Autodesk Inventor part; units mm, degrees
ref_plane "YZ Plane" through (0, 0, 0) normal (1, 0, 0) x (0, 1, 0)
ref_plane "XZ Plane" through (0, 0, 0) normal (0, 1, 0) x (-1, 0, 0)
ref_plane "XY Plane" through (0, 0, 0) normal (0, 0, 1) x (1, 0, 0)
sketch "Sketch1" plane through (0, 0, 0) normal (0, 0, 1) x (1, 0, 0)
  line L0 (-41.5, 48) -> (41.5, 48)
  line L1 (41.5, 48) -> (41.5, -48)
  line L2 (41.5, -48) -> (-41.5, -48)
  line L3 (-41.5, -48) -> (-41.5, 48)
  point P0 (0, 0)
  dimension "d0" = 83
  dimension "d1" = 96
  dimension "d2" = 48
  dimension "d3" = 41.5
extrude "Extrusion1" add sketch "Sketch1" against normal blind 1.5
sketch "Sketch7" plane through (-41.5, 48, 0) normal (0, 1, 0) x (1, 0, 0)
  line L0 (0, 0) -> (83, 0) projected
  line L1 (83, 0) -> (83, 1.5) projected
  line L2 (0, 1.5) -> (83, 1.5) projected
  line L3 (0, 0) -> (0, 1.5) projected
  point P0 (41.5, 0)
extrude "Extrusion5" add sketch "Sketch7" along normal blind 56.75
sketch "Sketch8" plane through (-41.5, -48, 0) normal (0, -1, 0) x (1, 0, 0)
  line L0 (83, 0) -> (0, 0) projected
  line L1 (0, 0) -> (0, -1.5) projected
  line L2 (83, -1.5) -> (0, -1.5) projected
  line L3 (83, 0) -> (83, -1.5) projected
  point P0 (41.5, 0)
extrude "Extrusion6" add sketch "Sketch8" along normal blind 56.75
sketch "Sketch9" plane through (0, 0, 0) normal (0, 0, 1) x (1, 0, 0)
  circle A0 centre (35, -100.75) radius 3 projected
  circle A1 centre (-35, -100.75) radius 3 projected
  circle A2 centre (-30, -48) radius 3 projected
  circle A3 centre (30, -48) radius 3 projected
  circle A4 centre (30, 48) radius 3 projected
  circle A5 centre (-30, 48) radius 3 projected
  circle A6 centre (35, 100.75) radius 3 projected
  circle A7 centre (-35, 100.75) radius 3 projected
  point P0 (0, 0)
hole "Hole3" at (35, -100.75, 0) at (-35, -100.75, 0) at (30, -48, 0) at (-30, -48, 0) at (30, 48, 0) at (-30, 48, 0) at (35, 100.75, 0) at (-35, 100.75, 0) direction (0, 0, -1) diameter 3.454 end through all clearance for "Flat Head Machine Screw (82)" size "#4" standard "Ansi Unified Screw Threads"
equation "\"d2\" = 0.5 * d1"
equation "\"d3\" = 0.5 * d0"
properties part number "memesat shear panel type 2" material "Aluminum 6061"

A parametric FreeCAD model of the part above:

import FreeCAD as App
import Part
import Sketcher
from FreeCAD import Vector
Q = App.Units.Quantity


def add_polygon(sketch, points):
    """Adds a closed chain of lines whose ends are joined by coincident constraints."""
    first, n = sketch.GeometryCount, len(points)
    for a, b in zip(points, points[1:] + points[:1]):
        sketch.addGeometry(Part.LineSegment(App.Vector(*a, 0), App.Vector(*b, 0)), False)
    for i in range(n):
        sketch.addConstraint(Sketcher.Constraint("Coincident", first + i, 2, first + (i + 1) % n, 1))

doc = App.newDocument("Part")
params = doc.addObject("Spreadsheet::Sheet", "Params")
for row, (alias, value) in enumerate([
    ("sketch1_width", "83 mm"),
    ("sketch1_height", "96 mm"),
    ("pad1_length", "1.5 mm"),
    ("sketch2_width", "83 mm"),
    ("sketch2_height", "1.5 mm"),
    ("pad2_length", "56.75 mm"),
    ("sketch3_width", "83 mm"),
    ("sketch3_height", "1.5 mm"),
    ("pad3_length", "56.75 mm"),
    ("hole_diameter", "3.454 mm"),
], start=1):
    params.set(f"A{row}", alias)
    params.set(f"B{row}", "=" + value)
    params.setAlias(f"B{row}", alias)

body = doc.addObject("PartDesign::Body", "Body")

# Sketch on XY plane
sketch1 = body.newObject("Sketcher::SketchObject", "Sketch")
sketch1.AttachmentSupport = (doc.getObject("XY_Plane"), [""])
sketch1.MapMode = "FlatFace"
add_polygon(sketch1, [(42, 48), (-42, 48), (-42, -48), (42, -48)])  # lines 0-3
sketch1.addConstraint(Sketcher.Constraint("Horizontal", 0))
sketch1.addConstraint(Sketcher.Constraint("Vertical", 1))
sketch1.addConstraint(Sketcher.Constraint("Horizontal", 2))
sketch1.addConstraint(Sketcher.Constraint("Vertical", 3))
sketch1.addConstraint(Sketcher.Constraint("Symmetric", 0, 2, 2, 2, -1, 1))
sketch1.addConstraint(Sketcher.Constraint("DistanceX", 0, 2, 0, 1, Q("83 mm")))
sketch1.addConstraint(Sketcher.Constraint("DistanceY", 1, 2, 1, 1, Q("96 mm")))
sketch1.setExpression("Constraints[9]", "Params.sketch1_width")
sketch1.setExpression("Constraints[10]", "Params.sketch1_height")
pad1 = body.newObject("PartDesign::Pad", "Pad")
pad1.Profile = sketch1
pad1.setExpression("Length", "Params.pad1_length")
pad1.Reversed = True

# Sketch on XZ plane
sketch2 = body.newObject("Sketcher::SketchObject", "Sketch001")
sketch2.AttachmentSupport = (doc.getObject("XZ_Plane"), [""])
sketch2.MapMode = "FlatFace"
sketch2.AttachmentOffset = App.Placement(Vector(0, 0, -48), App.Rotation())
add_polygon(sketch2, [(-41.5, -1.5), (-41.5, 0), (41.5, 0), (41.5, -1.5)])  # lines 0-3
sketch2.addConstraint(Sketcher.Constraint("Vertical", 0))
sketch2.addConstraint(Sketcher.Constraint("Horizontal", 1))
sketch2.addConstraint(Sketcher.Constraint("Vertical", 2))
sketch2.addConstraint(Sketcher.Constraint("Horizontal", 3))
sketch2.addConstraint(Sketcher.Constraint("Symmetric", 0, 2, 1, 2, -1, 1))
sketch2.addConstraint(Sketcher.Constraint("DistanceX", 1, 1, 1, 2, Q("83 mm")))
sketch2.addConstraint(Sketcher.Constraint("DistanceY", 0, 1, 0, 2, Q("1.5 mm")))
sketch2.setExpression("Constraints[9]", "Params.sketch2_width")
sketch2.setExpression("Constraints[10]", "Params.sketch2_height")
pad2 = body.newObject("PartDesign::Pad", "Pad001")
pad2.Profile = sketch2
pad2.setExpression("Length", "Params.pad2_length")
pad2.Reversed = True

# Sketch on XZ plane
sketch3 = body.newObject("Sketcher::SketchObject", "Sketch002")
sketch3.AttachmentSupport = (doc.getObject("XZ_Plane"), [""])
sketch3.MapMode = "FlatFace"
sketch3.AttachmentOffset = App.Placement(Vector(0, 0, 48), App.Rotation())
add_polygon(sketch3, [(41.5, -1.5), (41.5, 0), (-41.5, 0), (-41.5, -1.5)])  # lines 0-3
sketch3.addConstraint(Sketcher.Constraint("Vertical", 0))
sketch3.addConstraint(Sketcher.Constraint("Horizontal", 1))
sketch3.addConstraint(Sketcher.Constraint("Vertical", 2))
sketch3.addConstraint(Sketcher.Constraint("Horizontal", 3))
sketch3.addConstraint(Sketcher.Constraint("Symmetric", 0, 2, 1, 2, -1, 1))
sketch3.addConstraint(Sketcher.Constraint("DistanceX", 1, 2, 1, 1, Q("83 mm")))
sketch3.addConstraint(Sketcher.Constraint("DistanceY", 0, 1, 0, 2, Q("1.5 mm")))
sketch3.setExpression("Constraints[9]", "Params.sketch3_width")
sketch3.setExpression("Constraints[10]", "Params.sketch3_height")
pad3 = body.newObject("PartDesign::Pad", "Pad002")
pad3.Profile = sketch3
pad3.setExpression("Length", "Params.pad3_length")

# Sketch on XY plane
sketch4 = body.newObject("Sketcher::SketchObject", "Sketch003")
sketch4.AttachmentSupport = (doc.getObject("XY_Plane"), [""])
sketch4.MapMode = "FlatFace"
sketch4.addGeometry(Part.Circle(Vector(35, -100.8, 0), Vector(0, 0, 1), 1.7), False)
sketch4.addGeometry(Part.Circle(Vector(-35, -100.8, 0), Vector(0, 0, 1), 1.7), False)
sketch4.addGeometry(Part.Circle(Vector(30, -48, 0), Vector(0, 0, 1), 1.7), False)
sketch4.addGeometry(Part.Circle(Vector(-30, -48, 0), Vector(0, 0, 1), 1.7), False)
sketch4.addGeometry(Part.Circle(Vector(30, 48, 0), Vector(0, 0, 1), 1.7), False)
sketch4.addGeometry(Part.Circle(Vector(-30, 48, 0), Vector(0, 0, 1), 1.7), False)
sketch4.addGeometry(Part.Circle(Vector(35, 100.8, 0), Vector(0, 0, 1), 1.7), False)
sketch4.addGeometry(Part.Circle(Vector(-35, 100.8, 0), Vector(0, 0, 1), 1.7), False)
sketch4.addConstraint(Sketcher.Constraint("Equal", 0, 1))
sketch4.addConstraint(Sketcher.Constraint("Equal", 1, 2))
sketch4.addConstraint(Sketcher.Constraint("Equal", 2, 3))
sketch4.addConstraint(Sketcher.Constraint("Equal", 3, 4))
sketch4.addConstraint(Sketcher.Constraint("Equal", 4, 5))
sketch4.addConstraint(Sketcher.Constraint("Equal", 5, 6))
sketch4.addConstraint(Sketcher.Constraint("Equal", 6, 7))
sketch4.addConstraint(Sketcher.Constraint("Symmetric", 3, 3, 4, 3, -1, 1))
sketch4.addConstraint(Sketcher.Constraint("Symmetric", 2, 3, 5, 3, -1, 1))
sketch4.addConstraint(Sketcher.Constraint("Symmetric", 1, 3, 6, 3, -1, 1))
sketch4.addConstraint(Sketcher.Constraint("Symmetric", 0, 3, 7, 3, -1, 1))
sketch4.addConstraint(Sketcher.Constraint("Symmetric", 0, 3, 1, 3, -2))
sketch4.addConstraint(Sketcher.Constraint("Symmetric", 2, 3, 3, 3, -2))
sketch4.addConstraint(Sketcher.Constraint("Diameter", 0, Q("3.454 mm")))
sketch4.addConstraint(Sketcher.Constraint("DistanceX", -1, 1, 0, 3, Q("35 mm")))
sketch4.addConstraint(Sketcher.Constraint("DistanceX", -1, 1, 2, 3, Q("30 mm")))
sketch4.addConstraint(Sketcher.Constraint("DistanceY", 2, 3, -1, 1, Q("48 mm")))
sketch4.addConstraint(Sketcher.Constraint("DistanceY", 0, 3, 6, 3, Q("201.5 mm")))
doc.recompute()
hole = body.newObject("PartDesign::Hole", "Hole")
hole.Profile = sketch4
hole.ThreadType = "None"
hole.setExpression("Diameter", "Params.hole_diameter")
hole.DepthType = "ThroughAll"

doc.recompute()
